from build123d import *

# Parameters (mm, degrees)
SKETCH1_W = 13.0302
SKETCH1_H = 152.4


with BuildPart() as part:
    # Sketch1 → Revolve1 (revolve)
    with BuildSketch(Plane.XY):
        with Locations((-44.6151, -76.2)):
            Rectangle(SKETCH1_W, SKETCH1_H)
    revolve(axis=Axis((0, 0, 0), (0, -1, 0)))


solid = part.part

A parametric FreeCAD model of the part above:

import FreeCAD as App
import Part
import Sketcher
from FreeCAD import Vector
Q = App.Units.Quantity

doc = App.newDocument("Part")
params = doc.addObject("Spreadsheet::Sheet", "Params")
for row, (alias, value) in enumerate([
    ("sketch1_height", "6 in"),
    ("sketch1_width", "0.513 in"),
    ("revolution_angle", "360 deg"),
], start=1):
    params.set(f"A{row}", alias)
    params.set(f"B{row}", "=" + value)
    params.setAlias(f"B{row}", alias)

body = doc.addObject("PartDesign::Body", "Body")

sketch1 = doc.addObject("Sketcher::SketchObject", "Sketch")
body.addObject(sketch1)
sketch1.AttachmentSupport = (doc.XY_Plane, [""])
sketch1.MapMode = "FlatFace"
sketch1.addGeometry(Part.LineSegment(Vector(-51.1302, 0, 0), Vector(-51.1302, -152.4, 0)), False)
sketch1.addGeometry(Part.LineSegment(Vector(-51.1302, -152.4, 0), Vector(-38.1, -152.4, 0)), False)
sketch1.addGeometry(Part.LineSegment(Vector(-38.1, -152.4, 0), Vector(-38.1, 0, 0)), False)
sketch1.addGeometry(Part.LineSegment(Vector(-38.1, 0, 0), Vector(-51.1302, 0, 0)), False)
sketch1.addConstraint(Sketcher.Constraint("Coincident", 0, 2, 1, 1))
sketch1.addConstraint(Sketcher.Constraint("Coincident", 1, 2, 2, 1))
sketch1.addConstraint(Sketcher.Constraint("Coincident", 2, 2, 3, 1))
sketch1.addConstraint(Sketcher.Constraint("Coincident", 3, 2, 0, 1))
sketch1.addConstraint(Sketcher.Constraint("Vertical", 0))
sketch1.addConstraint(Sketcher.Constraint("Horizontal", 1))
sketch1.addConstraint(Sketcher.Constraint("Vertical", 2))
sketch1.addConstraint(Sketcher.Constraint("Horizontal", 3))
sketch1.addConstraint(Sketcher.Constraint("PointOnObject", 2, 2, -1))
sketch1.addConstraint(Sketcher.Constraint("DistanceY", 0, 2, 0, 1, Q("6 in")))
sketch1.addConstraint(Sketcher.Constraint("DistanceX", 1, 2, -1, 1, Q("1.5 in")))
sketch1.addConstraint(Sketcher.Constraint("DistanceX", 1, 1, 1, 2, Q("0.513 in")))
sketch1.setExpression("Constraints[9]", "Params.sketch1_height")
sketch1.setExpression("Constraints[11]", "Params.sketch1_width")
revolution = doc.addObject("PartDesign::Revolution", "Revolution")
body.addObject(revolution)
revolution.Profile = sketch1
revolution.ReferenceAxis = (sketch1, ["V_Axis"])
revolution.setExpression("Angle", "Params.revolution_angle")

doc.recompute()
